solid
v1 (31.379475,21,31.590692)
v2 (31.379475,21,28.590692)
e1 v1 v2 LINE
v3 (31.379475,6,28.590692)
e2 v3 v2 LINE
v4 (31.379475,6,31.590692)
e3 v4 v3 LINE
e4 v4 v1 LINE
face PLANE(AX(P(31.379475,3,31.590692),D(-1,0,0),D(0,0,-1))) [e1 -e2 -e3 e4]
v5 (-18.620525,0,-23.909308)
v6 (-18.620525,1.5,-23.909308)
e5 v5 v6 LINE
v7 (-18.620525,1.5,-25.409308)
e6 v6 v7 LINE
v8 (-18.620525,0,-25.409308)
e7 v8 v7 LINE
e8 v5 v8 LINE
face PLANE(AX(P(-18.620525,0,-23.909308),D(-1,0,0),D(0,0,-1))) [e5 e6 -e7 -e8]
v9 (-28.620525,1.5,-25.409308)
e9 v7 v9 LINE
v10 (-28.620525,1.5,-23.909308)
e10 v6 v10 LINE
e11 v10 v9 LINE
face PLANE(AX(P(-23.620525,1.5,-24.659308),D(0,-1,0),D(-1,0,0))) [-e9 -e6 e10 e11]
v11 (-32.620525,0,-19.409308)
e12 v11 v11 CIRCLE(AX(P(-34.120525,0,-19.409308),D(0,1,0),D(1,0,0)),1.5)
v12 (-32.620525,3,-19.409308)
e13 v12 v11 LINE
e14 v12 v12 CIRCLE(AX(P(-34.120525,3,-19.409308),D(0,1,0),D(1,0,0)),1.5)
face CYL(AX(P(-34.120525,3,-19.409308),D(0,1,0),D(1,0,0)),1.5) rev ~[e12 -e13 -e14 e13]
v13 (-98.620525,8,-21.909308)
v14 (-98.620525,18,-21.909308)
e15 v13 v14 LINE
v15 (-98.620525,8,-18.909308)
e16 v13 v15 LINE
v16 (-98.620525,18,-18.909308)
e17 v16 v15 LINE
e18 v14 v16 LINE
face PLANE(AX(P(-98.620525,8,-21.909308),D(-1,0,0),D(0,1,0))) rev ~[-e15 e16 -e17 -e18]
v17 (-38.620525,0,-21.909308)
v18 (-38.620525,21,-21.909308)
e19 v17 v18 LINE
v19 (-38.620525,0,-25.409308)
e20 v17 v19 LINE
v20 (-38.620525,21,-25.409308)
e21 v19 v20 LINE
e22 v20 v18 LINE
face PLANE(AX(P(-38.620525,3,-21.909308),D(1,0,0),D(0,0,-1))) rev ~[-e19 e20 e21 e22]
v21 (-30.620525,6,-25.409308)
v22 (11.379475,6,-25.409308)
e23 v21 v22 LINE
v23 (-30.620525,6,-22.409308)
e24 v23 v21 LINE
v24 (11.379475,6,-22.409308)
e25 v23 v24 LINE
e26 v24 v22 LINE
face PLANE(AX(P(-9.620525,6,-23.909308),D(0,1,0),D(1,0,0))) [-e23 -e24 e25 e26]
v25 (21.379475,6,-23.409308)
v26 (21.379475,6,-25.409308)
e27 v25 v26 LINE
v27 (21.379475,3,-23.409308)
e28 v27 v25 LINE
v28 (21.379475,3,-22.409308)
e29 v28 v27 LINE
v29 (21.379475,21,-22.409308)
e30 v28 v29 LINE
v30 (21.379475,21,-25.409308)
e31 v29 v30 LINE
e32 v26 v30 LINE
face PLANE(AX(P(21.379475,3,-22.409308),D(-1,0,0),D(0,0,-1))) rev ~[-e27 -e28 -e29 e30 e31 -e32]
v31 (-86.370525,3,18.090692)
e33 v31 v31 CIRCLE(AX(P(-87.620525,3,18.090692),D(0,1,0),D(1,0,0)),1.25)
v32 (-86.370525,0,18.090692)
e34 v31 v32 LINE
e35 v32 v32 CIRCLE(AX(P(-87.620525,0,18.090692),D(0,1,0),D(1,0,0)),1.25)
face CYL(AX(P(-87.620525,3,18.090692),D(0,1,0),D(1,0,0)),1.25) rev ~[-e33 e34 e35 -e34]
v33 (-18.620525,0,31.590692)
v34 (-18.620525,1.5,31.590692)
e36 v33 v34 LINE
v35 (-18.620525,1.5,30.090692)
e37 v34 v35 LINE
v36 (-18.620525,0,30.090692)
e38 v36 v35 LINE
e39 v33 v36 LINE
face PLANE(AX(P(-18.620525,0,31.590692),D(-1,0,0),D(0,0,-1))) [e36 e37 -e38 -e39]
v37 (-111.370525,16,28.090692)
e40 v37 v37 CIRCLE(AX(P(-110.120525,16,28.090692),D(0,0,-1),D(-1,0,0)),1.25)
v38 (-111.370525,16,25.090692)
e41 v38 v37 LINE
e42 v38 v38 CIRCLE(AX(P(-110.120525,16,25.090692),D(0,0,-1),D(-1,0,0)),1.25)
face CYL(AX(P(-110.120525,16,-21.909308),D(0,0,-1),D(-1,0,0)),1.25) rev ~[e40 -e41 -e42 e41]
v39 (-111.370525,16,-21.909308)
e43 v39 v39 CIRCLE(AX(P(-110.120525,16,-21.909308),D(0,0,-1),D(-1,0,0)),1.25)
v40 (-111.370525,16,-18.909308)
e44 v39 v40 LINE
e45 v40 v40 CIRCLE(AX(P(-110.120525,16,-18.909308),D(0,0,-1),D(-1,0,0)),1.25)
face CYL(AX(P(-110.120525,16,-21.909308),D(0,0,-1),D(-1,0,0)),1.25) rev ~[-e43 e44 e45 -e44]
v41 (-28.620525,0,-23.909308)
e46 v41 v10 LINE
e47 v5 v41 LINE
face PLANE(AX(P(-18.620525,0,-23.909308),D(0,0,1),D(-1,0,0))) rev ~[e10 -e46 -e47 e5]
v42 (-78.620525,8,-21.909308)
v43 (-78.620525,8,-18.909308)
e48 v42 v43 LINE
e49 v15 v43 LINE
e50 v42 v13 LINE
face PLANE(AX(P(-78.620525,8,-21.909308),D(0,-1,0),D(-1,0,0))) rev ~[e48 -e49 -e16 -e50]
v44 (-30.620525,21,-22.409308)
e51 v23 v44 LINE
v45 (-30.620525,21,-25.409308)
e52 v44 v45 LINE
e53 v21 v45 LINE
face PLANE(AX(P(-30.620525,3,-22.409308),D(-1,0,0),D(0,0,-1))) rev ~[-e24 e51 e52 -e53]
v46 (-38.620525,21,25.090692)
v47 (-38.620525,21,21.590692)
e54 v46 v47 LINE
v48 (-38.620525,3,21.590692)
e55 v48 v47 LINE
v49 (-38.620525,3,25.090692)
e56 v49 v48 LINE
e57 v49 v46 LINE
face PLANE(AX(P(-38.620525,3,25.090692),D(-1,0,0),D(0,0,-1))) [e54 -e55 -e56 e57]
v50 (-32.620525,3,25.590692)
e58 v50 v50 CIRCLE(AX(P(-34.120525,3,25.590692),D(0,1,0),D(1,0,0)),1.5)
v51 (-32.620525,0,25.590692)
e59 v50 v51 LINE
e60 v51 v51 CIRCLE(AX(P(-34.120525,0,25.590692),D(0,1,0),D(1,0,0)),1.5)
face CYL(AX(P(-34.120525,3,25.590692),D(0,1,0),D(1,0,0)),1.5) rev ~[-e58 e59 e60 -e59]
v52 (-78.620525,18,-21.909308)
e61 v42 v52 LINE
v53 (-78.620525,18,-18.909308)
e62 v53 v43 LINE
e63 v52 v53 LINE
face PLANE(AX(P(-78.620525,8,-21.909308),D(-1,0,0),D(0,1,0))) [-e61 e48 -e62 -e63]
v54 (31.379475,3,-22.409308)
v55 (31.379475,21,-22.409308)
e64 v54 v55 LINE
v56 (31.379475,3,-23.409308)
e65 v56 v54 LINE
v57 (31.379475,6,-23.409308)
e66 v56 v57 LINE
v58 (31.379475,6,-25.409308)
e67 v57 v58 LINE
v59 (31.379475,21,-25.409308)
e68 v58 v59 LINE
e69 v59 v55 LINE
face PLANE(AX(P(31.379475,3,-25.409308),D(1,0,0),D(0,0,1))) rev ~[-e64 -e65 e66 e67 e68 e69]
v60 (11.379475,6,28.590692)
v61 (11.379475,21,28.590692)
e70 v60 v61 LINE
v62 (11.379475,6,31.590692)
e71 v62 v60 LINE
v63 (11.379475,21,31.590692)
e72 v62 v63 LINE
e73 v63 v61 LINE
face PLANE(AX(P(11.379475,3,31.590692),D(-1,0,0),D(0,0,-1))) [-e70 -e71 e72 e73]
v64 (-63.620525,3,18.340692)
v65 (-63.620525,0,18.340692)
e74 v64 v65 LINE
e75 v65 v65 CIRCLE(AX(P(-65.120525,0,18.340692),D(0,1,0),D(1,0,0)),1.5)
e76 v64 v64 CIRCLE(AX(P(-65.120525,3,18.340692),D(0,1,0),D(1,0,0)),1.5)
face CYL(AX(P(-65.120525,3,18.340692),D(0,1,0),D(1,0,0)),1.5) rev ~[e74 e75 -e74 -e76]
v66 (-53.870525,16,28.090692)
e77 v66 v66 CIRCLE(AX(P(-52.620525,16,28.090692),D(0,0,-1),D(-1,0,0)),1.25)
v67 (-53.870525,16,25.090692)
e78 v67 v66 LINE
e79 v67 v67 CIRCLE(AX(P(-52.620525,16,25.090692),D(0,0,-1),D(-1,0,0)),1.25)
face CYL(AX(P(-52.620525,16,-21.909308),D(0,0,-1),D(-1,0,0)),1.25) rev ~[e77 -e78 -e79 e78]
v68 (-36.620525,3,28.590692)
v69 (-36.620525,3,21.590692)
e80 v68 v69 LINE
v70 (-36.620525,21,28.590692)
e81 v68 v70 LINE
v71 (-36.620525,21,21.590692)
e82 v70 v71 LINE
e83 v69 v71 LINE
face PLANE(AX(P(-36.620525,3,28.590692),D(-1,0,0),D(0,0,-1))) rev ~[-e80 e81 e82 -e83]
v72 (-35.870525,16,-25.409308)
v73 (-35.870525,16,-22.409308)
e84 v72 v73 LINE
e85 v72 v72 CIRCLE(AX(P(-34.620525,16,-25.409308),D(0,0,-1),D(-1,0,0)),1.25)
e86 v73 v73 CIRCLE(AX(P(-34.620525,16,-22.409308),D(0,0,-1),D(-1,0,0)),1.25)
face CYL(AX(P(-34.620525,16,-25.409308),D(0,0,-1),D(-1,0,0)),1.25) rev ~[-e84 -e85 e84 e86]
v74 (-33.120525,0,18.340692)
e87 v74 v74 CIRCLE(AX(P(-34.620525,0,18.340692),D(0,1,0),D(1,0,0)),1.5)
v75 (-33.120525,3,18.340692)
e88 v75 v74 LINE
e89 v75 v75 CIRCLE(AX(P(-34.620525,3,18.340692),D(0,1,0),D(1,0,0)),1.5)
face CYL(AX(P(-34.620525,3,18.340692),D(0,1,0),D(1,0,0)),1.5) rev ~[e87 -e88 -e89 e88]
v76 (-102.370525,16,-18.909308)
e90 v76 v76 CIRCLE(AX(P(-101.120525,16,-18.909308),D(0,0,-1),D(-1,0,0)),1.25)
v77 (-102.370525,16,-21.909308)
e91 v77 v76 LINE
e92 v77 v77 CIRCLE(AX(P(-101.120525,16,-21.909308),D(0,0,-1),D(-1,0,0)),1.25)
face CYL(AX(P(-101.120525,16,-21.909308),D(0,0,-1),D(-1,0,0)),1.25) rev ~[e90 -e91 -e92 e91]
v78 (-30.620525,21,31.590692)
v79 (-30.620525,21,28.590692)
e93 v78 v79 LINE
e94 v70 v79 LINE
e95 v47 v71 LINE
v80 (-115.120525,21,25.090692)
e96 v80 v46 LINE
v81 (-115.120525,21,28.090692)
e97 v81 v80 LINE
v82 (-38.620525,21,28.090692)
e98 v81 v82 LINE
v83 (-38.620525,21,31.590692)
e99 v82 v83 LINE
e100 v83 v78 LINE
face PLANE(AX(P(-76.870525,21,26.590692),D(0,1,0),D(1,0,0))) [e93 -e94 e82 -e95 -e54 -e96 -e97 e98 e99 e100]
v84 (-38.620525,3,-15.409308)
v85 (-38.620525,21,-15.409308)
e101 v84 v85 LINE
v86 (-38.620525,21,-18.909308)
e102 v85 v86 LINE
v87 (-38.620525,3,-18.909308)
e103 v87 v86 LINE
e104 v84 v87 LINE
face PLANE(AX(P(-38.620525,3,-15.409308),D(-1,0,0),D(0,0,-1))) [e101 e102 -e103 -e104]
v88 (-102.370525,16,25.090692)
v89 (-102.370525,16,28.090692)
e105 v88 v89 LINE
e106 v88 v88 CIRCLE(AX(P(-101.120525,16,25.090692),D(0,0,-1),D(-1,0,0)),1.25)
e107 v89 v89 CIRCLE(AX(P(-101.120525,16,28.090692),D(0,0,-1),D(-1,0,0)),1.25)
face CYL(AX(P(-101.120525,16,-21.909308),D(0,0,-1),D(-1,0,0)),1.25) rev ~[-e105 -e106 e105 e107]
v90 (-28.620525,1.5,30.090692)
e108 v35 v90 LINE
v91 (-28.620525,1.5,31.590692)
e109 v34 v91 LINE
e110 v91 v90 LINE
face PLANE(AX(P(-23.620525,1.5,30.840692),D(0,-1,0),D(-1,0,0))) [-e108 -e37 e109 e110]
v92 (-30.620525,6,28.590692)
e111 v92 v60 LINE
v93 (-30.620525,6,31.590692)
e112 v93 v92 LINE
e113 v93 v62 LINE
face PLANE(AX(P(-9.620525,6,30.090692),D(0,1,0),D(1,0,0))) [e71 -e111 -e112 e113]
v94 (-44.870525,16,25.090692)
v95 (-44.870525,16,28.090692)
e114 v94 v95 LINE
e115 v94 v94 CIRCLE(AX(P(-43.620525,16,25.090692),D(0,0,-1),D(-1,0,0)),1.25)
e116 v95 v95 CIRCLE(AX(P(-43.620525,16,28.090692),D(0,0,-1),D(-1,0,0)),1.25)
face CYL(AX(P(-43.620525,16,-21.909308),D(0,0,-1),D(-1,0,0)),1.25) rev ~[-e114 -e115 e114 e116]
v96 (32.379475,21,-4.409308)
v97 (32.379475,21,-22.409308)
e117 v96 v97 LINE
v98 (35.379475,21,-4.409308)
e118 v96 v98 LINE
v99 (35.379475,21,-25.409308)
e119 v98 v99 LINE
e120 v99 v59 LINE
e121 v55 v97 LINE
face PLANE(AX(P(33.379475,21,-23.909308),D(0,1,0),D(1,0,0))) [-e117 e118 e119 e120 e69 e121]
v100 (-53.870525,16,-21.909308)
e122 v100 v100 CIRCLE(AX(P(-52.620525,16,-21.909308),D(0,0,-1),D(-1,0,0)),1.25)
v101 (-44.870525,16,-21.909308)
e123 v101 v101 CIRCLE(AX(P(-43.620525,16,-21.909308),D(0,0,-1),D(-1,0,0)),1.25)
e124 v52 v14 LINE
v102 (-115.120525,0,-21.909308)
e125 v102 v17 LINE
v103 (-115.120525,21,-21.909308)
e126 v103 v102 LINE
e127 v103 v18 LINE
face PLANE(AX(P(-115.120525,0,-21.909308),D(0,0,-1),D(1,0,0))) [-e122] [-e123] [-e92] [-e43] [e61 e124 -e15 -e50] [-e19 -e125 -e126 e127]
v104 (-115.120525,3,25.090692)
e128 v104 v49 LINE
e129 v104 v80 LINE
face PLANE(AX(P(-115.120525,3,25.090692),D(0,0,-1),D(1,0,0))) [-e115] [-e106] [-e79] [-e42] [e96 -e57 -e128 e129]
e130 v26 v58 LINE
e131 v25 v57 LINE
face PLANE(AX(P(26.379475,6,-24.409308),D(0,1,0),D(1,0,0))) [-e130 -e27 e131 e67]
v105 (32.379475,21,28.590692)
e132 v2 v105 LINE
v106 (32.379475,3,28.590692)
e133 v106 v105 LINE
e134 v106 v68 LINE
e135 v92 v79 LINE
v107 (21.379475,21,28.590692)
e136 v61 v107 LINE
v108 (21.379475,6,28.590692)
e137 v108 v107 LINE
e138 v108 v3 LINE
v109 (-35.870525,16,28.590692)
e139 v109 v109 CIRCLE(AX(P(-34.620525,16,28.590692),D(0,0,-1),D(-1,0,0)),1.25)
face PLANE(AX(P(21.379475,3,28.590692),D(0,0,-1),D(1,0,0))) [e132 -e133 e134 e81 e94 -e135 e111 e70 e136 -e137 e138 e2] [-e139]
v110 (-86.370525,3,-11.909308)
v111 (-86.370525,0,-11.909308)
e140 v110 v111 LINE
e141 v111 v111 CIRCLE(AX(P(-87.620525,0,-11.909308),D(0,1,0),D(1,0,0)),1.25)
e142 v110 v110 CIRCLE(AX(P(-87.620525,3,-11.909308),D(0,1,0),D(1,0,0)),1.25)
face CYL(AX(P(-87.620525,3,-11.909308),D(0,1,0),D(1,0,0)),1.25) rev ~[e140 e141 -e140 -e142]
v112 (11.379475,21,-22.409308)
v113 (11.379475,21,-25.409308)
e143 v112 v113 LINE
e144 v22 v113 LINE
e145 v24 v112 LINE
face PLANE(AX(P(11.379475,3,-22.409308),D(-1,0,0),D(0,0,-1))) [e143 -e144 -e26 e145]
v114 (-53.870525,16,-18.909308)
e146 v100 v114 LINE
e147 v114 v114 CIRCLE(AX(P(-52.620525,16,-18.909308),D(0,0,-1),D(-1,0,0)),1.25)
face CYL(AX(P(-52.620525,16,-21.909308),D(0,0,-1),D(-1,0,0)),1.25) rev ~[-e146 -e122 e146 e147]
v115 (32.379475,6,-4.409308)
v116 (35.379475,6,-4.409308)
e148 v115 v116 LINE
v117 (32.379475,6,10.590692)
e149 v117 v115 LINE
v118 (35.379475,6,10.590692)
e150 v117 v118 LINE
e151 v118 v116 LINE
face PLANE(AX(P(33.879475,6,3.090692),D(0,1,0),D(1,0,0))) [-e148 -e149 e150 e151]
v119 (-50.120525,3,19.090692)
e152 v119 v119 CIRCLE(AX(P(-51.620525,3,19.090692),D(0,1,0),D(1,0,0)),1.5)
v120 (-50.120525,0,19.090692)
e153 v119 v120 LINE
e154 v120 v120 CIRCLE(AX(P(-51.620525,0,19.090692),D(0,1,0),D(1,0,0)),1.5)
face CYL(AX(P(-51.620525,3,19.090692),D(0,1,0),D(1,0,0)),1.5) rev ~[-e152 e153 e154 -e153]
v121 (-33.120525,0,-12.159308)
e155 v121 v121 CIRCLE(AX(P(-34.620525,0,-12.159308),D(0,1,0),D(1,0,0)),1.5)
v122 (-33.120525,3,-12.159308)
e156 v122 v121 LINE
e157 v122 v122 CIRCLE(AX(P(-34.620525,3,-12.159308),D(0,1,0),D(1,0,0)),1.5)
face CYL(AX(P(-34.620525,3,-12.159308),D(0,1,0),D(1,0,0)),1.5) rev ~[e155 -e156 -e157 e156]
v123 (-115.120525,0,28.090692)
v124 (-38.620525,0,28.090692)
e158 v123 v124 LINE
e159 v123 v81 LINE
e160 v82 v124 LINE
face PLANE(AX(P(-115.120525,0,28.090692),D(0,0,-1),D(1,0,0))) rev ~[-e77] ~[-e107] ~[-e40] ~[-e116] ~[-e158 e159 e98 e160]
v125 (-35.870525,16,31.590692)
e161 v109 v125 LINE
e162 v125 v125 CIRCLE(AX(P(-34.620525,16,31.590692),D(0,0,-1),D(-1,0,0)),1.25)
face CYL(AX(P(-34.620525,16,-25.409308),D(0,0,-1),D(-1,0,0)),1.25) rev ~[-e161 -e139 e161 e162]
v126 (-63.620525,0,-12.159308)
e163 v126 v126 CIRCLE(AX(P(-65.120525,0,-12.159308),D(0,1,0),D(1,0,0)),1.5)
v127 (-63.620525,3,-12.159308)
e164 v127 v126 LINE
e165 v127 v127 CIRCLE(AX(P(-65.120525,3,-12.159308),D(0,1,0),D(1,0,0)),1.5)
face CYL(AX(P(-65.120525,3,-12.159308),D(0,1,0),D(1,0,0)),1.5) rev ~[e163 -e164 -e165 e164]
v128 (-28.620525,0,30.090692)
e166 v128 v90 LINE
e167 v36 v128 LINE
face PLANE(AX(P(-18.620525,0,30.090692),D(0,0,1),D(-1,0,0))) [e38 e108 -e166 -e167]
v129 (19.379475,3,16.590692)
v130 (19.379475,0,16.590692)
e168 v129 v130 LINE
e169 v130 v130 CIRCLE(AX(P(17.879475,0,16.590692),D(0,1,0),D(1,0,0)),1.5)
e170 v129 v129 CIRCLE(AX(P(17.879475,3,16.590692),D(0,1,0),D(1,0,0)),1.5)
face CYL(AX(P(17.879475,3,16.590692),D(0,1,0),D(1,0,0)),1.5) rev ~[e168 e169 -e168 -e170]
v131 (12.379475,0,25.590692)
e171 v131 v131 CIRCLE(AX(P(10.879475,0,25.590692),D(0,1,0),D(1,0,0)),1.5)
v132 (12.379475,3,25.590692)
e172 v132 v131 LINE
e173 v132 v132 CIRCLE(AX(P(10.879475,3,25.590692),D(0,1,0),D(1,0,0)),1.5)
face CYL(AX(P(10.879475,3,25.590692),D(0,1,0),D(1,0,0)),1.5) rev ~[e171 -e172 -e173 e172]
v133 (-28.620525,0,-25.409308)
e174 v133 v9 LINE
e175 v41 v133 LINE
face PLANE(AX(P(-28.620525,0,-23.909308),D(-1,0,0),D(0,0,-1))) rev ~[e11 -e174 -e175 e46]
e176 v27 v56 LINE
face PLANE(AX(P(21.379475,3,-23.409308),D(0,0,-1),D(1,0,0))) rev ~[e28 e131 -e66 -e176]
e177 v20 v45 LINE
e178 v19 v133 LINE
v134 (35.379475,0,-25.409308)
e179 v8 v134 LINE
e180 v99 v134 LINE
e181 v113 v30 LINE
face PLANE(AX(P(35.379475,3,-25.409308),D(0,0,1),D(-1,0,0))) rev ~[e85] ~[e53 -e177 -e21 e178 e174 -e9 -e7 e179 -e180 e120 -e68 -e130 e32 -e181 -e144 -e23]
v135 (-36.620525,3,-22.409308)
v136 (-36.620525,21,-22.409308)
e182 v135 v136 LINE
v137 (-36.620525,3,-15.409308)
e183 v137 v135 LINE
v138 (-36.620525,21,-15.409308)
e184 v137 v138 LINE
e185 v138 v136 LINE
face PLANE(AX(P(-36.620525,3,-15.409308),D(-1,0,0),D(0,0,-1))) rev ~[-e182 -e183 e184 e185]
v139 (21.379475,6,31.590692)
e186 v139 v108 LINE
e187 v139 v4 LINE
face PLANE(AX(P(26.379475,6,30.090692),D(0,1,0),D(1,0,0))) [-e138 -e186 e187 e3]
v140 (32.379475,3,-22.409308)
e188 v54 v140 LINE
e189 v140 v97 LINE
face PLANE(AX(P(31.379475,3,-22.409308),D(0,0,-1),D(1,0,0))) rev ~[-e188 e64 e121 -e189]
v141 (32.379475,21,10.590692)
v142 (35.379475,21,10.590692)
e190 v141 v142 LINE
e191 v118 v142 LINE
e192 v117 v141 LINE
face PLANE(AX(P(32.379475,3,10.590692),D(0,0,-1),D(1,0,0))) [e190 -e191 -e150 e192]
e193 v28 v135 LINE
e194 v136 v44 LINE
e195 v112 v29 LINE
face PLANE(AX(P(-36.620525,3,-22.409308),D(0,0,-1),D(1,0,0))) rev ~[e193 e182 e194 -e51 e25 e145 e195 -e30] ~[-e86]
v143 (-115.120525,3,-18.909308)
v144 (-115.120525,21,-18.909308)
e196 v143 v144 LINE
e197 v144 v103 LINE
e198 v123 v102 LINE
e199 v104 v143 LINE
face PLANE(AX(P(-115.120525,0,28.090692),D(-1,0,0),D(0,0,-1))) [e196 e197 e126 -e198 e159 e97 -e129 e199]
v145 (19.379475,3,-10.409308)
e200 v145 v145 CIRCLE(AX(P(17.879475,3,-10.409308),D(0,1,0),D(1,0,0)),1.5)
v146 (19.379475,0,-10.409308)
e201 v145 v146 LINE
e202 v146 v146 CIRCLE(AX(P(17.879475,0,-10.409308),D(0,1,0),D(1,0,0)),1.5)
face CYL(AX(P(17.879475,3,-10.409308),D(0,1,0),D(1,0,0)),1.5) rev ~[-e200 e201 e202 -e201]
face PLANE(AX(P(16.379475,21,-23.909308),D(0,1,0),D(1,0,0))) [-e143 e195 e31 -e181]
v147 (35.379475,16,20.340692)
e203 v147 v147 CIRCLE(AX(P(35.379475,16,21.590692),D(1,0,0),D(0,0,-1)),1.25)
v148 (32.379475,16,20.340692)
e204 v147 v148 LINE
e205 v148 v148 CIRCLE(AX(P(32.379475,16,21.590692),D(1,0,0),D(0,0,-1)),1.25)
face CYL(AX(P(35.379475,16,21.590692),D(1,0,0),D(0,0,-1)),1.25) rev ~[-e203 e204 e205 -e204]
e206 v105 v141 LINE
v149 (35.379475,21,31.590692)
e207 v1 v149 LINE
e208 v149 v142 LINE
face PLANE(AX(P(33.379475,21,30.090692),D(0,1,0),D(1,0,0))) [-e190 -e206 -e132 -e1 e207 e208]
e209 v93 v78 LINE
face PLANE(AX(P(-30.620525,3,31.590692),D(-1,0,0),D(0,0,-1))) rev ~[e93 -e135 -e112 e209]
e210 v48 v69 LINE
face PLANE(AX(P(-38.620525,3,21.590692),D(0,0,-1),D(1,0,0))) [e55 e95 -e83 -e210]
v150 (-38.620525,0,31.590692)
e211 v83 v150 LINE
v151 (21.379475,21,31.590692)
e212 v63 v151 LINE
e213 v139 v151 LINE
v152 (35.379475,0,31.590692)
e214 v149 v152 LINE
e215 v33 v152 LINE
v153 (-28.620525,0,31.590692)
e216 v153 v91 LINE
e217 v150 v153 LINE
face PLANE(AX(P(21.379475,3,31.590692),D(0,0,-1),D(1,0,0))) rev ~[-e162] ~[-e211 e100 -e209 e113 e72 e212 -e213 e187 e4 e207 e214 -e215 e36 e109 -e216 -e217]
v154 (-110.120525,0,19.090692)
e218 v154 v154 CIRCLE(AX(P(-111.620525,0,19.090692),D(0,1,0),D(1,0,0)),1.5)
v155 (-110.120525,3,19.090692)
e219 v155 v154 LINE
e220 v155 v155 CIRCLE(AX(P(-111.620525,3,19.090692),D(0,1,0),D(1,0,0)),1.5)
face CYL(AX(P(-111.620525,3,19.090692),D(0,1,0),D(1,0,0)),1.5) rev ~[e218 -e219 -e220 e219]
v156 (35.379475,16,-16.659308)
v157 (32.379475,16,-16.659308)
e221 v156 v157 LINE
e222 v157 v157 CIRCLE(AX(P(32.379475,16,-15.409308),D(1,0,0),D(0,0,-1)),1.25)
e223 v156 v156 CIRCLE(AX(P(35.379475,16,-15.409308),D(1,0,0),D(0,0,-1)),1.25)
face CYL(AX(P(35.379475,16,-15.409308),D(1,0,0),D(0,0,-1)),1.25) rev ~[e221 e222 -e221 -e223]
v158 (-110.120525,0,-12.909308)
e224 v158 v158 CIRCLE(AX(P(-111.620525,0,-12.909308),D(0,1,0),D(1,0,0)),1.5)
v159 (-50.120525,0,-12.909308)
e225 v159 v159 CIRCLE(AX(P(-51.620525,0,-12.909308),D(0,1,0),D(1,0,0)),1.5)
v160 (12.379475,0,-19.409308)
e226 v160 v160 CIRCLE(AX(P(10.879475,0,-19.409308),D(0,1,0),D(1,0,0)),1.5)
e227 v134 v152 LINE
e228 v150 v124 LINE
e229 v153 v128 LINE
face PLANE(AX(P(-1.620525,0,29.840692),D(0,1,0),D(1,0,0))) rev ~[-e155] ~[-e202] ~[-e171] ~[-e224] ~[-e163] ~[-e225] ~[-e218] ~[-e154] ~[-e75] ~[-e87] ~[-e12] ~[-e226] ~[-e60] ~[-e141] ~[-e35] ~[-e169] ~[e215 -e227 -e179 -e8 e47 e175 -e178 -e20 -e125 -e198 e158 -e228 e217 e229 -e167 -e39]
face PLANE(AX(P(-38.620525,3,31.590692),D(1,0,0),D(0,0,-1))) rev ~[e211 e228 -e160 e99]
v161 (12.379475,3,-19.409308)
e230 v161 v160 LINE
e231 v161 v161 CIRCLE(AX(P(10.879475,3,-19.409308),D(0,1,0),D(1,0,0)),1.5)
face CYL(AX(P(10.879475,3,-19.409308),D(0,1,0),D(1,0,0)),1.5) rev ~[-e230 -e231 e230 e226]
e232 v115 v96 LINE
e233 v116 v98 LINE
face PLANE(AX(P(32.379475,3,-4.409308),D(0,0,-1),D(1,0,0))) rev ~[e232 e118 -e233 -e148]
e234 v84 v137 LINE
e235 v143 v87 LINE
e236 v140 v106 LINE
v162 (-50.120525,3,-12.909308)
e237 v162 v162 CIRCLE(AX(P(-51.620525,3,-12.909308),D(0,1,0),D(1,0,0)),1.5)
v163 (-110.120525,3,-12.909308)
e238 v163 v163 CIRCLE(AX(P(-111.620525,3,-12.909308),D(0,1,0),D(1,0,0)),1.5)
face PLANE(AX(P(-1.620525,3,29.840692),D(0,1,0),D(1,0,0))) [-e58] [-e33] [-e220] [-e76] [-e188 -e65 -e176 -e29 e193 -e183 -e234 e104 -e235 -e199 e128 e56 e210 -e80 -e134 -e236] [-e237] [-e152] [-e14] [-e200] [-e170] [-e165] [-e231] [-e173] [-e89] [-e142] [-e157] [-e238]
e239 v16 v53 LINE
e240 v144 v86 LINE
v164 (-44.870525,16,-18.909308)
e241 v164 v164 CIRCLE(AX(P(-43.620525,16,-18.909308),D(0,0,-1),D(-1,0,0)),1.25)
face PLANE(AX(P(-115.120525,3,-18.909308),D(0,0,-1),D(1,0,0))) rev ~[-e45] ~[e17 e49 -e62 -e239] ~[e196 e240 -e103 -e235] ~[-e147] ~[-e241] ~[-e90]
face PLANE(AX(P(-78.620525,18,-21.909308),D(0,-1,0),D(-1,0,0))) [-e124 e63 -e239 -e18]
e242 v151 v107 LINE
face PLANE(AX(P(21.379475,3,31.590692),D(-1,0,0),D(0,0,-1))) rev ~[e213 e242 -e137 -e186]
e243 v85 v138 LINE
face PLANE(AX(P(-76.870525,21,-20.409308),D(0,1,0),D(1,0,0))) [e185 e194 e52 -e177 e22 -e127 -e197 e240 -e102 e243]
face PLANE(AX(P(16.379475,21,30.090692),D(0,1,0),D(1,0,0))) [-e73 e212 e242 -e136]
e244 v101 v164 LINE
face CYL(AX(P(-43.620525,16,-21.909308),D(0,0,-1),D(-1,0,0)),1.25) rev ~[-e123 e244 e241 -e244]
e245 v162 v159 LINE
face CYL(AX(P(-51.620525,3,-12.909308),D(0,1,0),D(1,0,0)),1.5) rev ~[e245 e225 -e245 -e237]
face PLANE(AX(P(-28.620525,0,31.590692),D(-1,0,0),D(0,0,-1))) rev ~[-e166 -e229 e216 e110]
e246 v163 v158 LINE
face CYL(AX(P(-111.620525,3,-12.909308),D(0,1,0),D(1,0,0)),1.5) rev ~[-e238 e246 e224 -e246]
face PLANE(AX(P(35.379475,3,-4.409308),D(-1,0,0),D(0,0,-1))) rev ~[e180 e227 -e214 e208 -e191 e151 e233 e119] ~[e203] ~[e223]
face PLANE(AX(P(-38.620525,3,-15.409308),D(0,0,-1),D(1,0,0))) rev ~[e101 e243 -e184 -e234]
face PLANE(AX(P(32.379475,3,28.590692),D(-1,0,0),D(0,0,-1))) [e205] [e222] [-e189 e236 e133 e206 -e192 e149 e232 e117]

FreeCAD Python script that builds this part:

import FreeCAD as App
import Part
import Sketcher


def add_polygon(sketch, points):
    """Adds a closed chain of lines whose ends are joined by coincident constraints."""
    first, n = sketch.GeometryCount, len(points)
    for a, b in zip(points, points[1:] + points[:1]):
        sketch.addGeometry(Part.LineSegment(App.Vector(*a, 0), App.Vector(*b, 0)), False)
    for i in range(n):
        sketch.addConstraint(Sketcher.Constraint("Coincident", first + i, 2, first + (i + 1) % n, 1))

doc = App.newDocument("Part")
body = doc.addObject("PartDesign::Body", "Body")

# Sketch on XZ plane
sketch1 = doc.addObject("Sketcher::SketchObject", "Sketch")
body.addObject(sketch1)
sketch1.AttachmentSupport = (doc.XZ_Plane, [""])
sketch1.MapMode = "FlatFace"
add_polygon(sketch1, [(-115, -22), (-115, 28), (35, 28), (35, -22)])  # lines 0-3
sketch1.addConstraint([
    Sketcher.Constraint("Vertical", 0),
    Sketcher.Constraint("Horizontal", 1),
    Sketcher.Constraint("Vertical", 2),
    Sketcher.Constraint("Horizontal", 3),
    Sketcher.Constraint("DistanceY", 0, 1, 0, 2, 50.0),
    Sketcher.Constraint("DistanceX", 1, 1, 1, 2, 150.5),
    Sketcher.Constraint("DistanceX", 0, 2, -1, 1, 115.120525),
    Sketcher.Constraint("DistanceY", -1, 1, 0, 2, 28.090692),
])
pad1 = doc.addObject("PartDesign::Pad", "Pad")
body.addObject(pad1)
pad1.Profile = sketch1
pad1.Length = 3
pad1.Reversed = True

# Sketch on XZ plane
sketch2 = doc.addObject("Sketcher::SketchObject", "Sketch001")
body.addObject(sketch2)
sketch2.AttachmentSupport = (doc.XZ_Plane, [""])
sketch2.MapMode = "FlatFace"
sketch2.AttachmentOffset = App.Placement(App.Vector(0, 0, -3), App.Rotation())
sketch2.addGeometry([
    Part.Circle(App.Vector(-65.1, -12.2, 0), App.Vector(0, 0, 1), 1.5),  # 0
    Part.Circle(App.Vector(-65.1, 18.3, 0), App.Vector(0, 0, 1), 1.5),  # 1
    Part.Circle(App.Vector(-34.6, 18.3, 0), App.Vector(0, 0, 1), 1.5),  # 2
    Part.Circle(App.Vector(-34.6, -12.2, 0), App.Vector(0, 0, 1), 1.5),  # 3
    Part.Circle(App.Vector(17.9, 16.6, 0), App.Vector(0, 0, 1), 1.5),  # 4
    Part.Circle(App.Vector(17.9, -10.4, 0), App.Vector(0, 0, 1), 1.5),  # 5
    Part.Circle(App.Vector(-111.6, 19.1, 0), App.Vector(0, 0, 1), 1.5),  # 6
    Part.Circle(App.Vector(-111.6, -12.9, 0), App.Vector(0, 0, 1), 1.5),  # 7
    Part.Circle(App.Vector(-87.6, -11.9, 0), App.Vector(0, 0, 1), 1.2),  # 8
    Part.Circle(App.Vector(-87.6, 18.1, 0), App.Vector(0, 0, 1), 1.2),  # 9
    Part.Circle(App.Vector(-51.6, -12.9, 0), App.Vector(0, 0, 1), 1.5),  # 10
    Part.Circle(App.Vector(-51.6, 19.1, 0), App.Vector(0, 0, 1), 1.5),  # 11
], False)
sketch2.addConstraint([
    Sketcher.Constraint("Equal", 0, 1),
    Sketcher.Constraint("Equal", 1, 2),
    Sketcher.Constraint("Equal", 2, 3),
    Sketcher.Constraint("Equal", 3, 4),
    Sketcher.Constraint("Equal", 4, 5),
    Sketcher.Constraint("Equal", 5, 6),
    Sketcher.Constraint("Equal", 6, 7),
    Sketcher.Constraint("Equal", 8, 9),
    Sketcher.Constraint("Equal", 7, 10),
    Sketcher.Constraint("Equal", 10, 11),
    Sketcher.Constraint("Horizontal", 1, 3, 2, 3),
    Sketcher.Constraint("Horizontal", 0, 3, 3, 3),
    Sketcher.Constraint("Horizontal", 7, 3, 10, 3),
    Sketcher.Constraint("Horizontal", 6, 3, 11, 3),
    Sketcher.Constraint("Vertical", 0, 3, 1, 3),
    Sketcher.Constraint("Vertical", 2, 3, 3, 3),
    Sketcher.Constraint("Vertical", 4, 3, 5, 3),
    Sketcher.Constraint("Vertical", 6, 3, 7, 3),
    Sketcher.Constraint("Vertical", 8, 3, 9, 3),
    Sketcher.Constraint("Vertical", 10, 3, 11, 3),
    Sketcher.Constraint("Diameter", 0, 3.0),
    Sketcher.Constraint("Diameter", 8, 2.5),
    Sketcher.Constraint("DistanceX", 1, 3, 4, 3, 83.0),
    Sketcher.Constraint("DistanceY", 5, 3, 4, 3, 27.0),
    Sketcher.Constraint("DistanceX", 6, 3, 2, 3, 77.0),
    Sketcher.Constraint("DistanceY", 7, 3, 6, 3, 32.0),
    Sketcher.Constraint("DistanceX", 7, 3, 8, 3, 24.0),
    Sketcher.Constraint("DistanceY", 7, 3, 8, 3, 1.0),
    Sketcher.Constraint("DistanceY", 9, 3, 6, 3, 1.0),
    Sketcher.Constraint("DistanceX", 10, 3, 3, 3, 17.0),
    Sketcher.Constraint("DistanceY", 0, 3, 1, 3, 30.5),
    Sketcher.Constraint("DistanceX", 1, 3, 2, 3, 30.5),
    Sketcher.Constraint("DistanceY", 4, 3, 6, 3, 2.5),
    Sketcher.Constraint("DistanceY", 4, 3, 2, 3, 1.75),
    Sketcher.Constraint("DistanceX", 0, 3, -1, 1, 65.120525),
    Sketcher.Constraint("DistanceY", 0, 3, -1, 1, 12.159308),
])
pocket1 = doc.addObject("PartDesign::Pocket", "Pocket")
body.addObject(pocket1)
pocket1.Profile = sketch2
pocket1.Type = "ThroughAll"
pocket1.Reversed = True

# Sketch on XZ plane
sketch3 = doc.addObject("Sketcher::SketchObject", "Sketch002")
body.addObject(sketch3)
sketch3.AttachmentSupport = (doc.XZ_Plane, [""])
sketch3.MapMode = "FlatFace"
sketch3.AttachmentOffset = App.Placement(App.Vector(0, 0, -3), App.Rotation())
add_polygon(sketch3, [(-38.6, 28.1), (-38.6, 31.6), (35.4, 31.6), (35.4, 28.1)])  # lines 0-3
add_polygon(sketch3, [(-38.6, -25.4), (-38.6, -21.9), (35.4, -21.9), (35.4, -25.4)])  # lines 4-7
sketch3.addConstraint([
    Sketcher.Constraint("Vertical", 0),
    Sketcher.Constraint("Horizontal", 1),
    Sketcher.Constraint("Vertical", 2),
    Sketcher.Constraint("Horizontal", 3),
    Sketcher.Constraint("Vertical", 4),
    Sketcher.Constraint("Horizontal", 5),
    Sketcher.Constraint("Vertical", 6),
    Sketcher.Constraint("Horizontal", 7),
    Sketcher.Constraint("Vertical", 3, 2, 4, 2),
    Sketcher.Constraint("Vertical", 2, 2, 5, 2),
    Sketcher.Constraint("Equal", 2, 4),
    Sketcher.Constraint("DistanceX", 1, 1, 1, 2, 74.0),
    Sketcher.Constraint("DistanceY", 0, 1, 0, 2, 3.5),
    Sketcher.Constraint("DistanceY", 4, 2, 3, 2, 50.0),
    Sketcher.Constraint("DistanceX", 0, 2, -1, 1, 38.620525),
    Sketcher.Constraint("DistanceY", -1, 1, 0, 2, 31.590692),
])
pad2 = doc.addObject("PartDesign::Pad", "Pad001")
body.addObject(pad2)
pad2.Profile = sketch3
pad2.Length = 3

# Sketch on XZ plane
sketch4 = doc.addObject("Sketcher::SketchObject", "Sketch003")
body.addObject(sketch4)
sketch4.AttachmentSupport = (doc.XZ_Plane, [""])
sketch4.MapMode = "FlatFace"
sketch4.AttachmentOffset = App.Placement(App.Vector(0, 0, -3), App.Rotation())
sketch4.addGeometry([
    Part.Circle(App.Vector(-34.1, -19.4, 0), App.Vector(0, 0, 1), 1.5),
    Part.Circle(App.Vector(-34.1, 25.6, 0), App.Vector(0, 0, 1), 1.5),
    Part.Circle(App.Vector(10.9, -19.4, 0), App.Vector(0, 0, 1), 1.5),
    Part.Circle(App.Vector(10.9, 25.6, 0), App.Vector(0, 0, 1), 1.5),
], False)
sketch4.addConstraint([
    Sketcher.Constraint("Equal", 0, 1),
    Sketcher.Constraint("Equal", 1, 2),
    Sketcher.Constraint("Equal", 2, 3),
    Sketcher.Constraint("Horizontal", 0, 3, 2, 3),
    Sketcher.Constraint("Horizontal", 1, 3, 3, 3),
    Sketcher.Constraint("Vertical", 0, 3, 1, 3),
    Sketcher.Constraint("Vertical", 2, 3, 3, 3),
    Sketcher.Constraint("Diameter", 0, 3.0),
    Sketcher.Constraint("DistanceY", 0, 3, 1, 3, 45.0),
    Sketcher.Constraint("DistanceX", 0, 3, 2, 3, 45.0),
    Sketcher.Constraint("DistanceX", 0, 3, -1, 1, 34.120525),
    Sketcher.Constraint("DistanceY", 0, 3, -1, 1, 19.409308),
])
pocket2 = doc.addObject("PartDesign::Pocket", "Pocket001")
body.addObject(pocket2)
pocket2.Profile = sketch4
pocket2.Type = "ThroughAll"
pocket2.Reversed = True

# Sketch on XZ plane
sketch5 = doc.addObject("Sketcher::SketchObject", "Sketch004")
body.addObject(sketch5)
sketch5.AttachmentSupport = (doc.XZ_Plane, [""])
sketch5.MapMode = "FlatFace"
sketch5.AttachmentOffset = App.Placement(App.Vector(0, 0, -3), App.Rotation())
add_polygon(sketch5, [(35.4, -25.4), (31.4, -25.4), (31.4, -22.4), (32.4, -22.4), (32.4, -4.4), (35.4, -4.4)])  # lines 0-5
add_polygon(sketch5, [(-115.1, 25.1), (-115.1, 28.1), (-38.6, 28.1), (-38.6, 31.6), (-30.6, 31.6), (-30.6, 28.6), (-36.6, 28.6), (-36.6, 21.6), (-38.6, 21.6), (-38.6, 25.1)])  # lines 6-15
add_polygon(sketch5, [(-115.1, -21.9), (-115.1, -18.9), (-38.6, -18.9), (-38.6, -15.4), (-36.6, -15.4), (-36.6, -22.4), (-30.6, -22.4), (-30.6, -25.4), (-38.6, -25.4), (-38.6, -21.9)])  # lines 16-25
add_polygon(sketch5, [(31.4, 28.6), (31.4, 31.6), (35.4, 31.6), (35.4, 10.6), (32.4, 10.6), (32.4, 28.6)])  # lines 26-31
add_polygon(sketch5, [(11.4, 28.6), (11.4, 31.6), (21.4, 31.6), (21.4, 28.6)])  # lines 32-35
add_polygon(sketch5, [(11.4, -25.4), (11.4, -22.4), (21.4, -22.4), (21.4, -25.4)])  # lines 36-39
sketch5.addConstraint([
    Sketcher.Constraint("Horizontal", 0),
    Sketcher.Constraint("Vertical", 1),
    Sketcher.Constraint("Horizontal", 2),
    Sketcher.Constraint("Vertical", 3),
    Sketcher.Constraint("Horizontal", 4),
    Sketcher.Constraint("Vertical", 5),
    Sketcher.Constraint("Vertical", 6),
    Sketcher.Constraint("Horizontal", 7),
    Sketcher.Constraint("Vertical", 8),
    Sketcher.Constraint("Horizontal", 9),
    Sketcher.Constraint("Vertical", 10),
    Sketcher.Constraint("Horizontal", 11),
    Sketcher.Constraint("Vertical", 12),
    Sketcher.Constraint("Horizontal", 13),
    Sketcher.Constraint("Vertical", 14),
    Sketcher.Constraint("Horizontal", 15),
    Sketcher.Constraint("Vertical", 16),
    Sketcher.Constraint("Horizontal", 17),
    Sketcher.Constraint("Vertical", 18),
    Sketcher.Constraint("Horizontal", 19),
    Sketcher.Constraint("Vertical", 20),
    Sketcher.Constraint("Horizontal", 21),
    Sketcher.Constraint("Vertical", 22),
    Sketcher.Constraint("Horizontal", 23),
    Sketcher.Constraint("Vertical", 24),
    Sketcher.Constraint("Horizontal", 25),
    Sketcher.Constraint("Vertical", 26),
    Sketcher.Constraint("Horizontal", 27),
    Sketcher.Constraint("Vertical", 28),
    Sketcher.Constraint("Horizontal", 29),
    Sketcher.Constraint("Vertical", 30),
    Sketcher.Constraint("Horizontal", 31),
    Sketcher.Constraint("Vertical", 32),
    Sketcher.Constraint("Horizontal", 33),
    Sketcher.Constraint("Vertical", 34),
    Sketcher.Constraint("Horizontal", 35),
    Sketcher.Constraint("Vertical", 36),
    Sketcher.Constraint("Horizontal", 37),
    Sketcher.Constraint("Vertical", 38),
    Sketcher.Constraint("Horizontal", 39),
    Sketcher.Constraint("Horizontal", 2, 2, 20, 2),
    Sketcher.Constraint("Horizontal", 5, 2, 22, 2),
    Sketcher.Constraint("Horizontal", 9, 2, 26, 2),
    Sketcher.Constraint("Horizontal", 11, 2, 30, 2),
    Sketcher.Constraint("Horizontal", 27, 2, 32, 2),
    Sketcher.Constraint("Horizontal", 31, 2, 34, 2),
    Sketcher.Constraint("Horizontal", 21, 2, 36, 2),
    Sketcher.Constraint("Horizontal", 23, 2, 38, 2),
    Sketcher.Constraint("Vertical", 8, 2, 13, 2),
    Sketcher.Constraint("Vertical", 15, 2, 16, 2),
    Sketcher.Constraint("Vertical", 14, 2, 17, 2),
    Sketcher.Constraint("Vertical", 12, 2, 19, 2),
    Sketcher.Constraint("Vertical", 10, 2, 21, 2),
    Sketcher.Constraint("Vertical", 18, 2, 23, 2),
    Sketcher.Constraint("Vertical", 1, 2, 26, 2),
    Sketcher.Constraint("Vertical", 5, 2, 27, 2),
    Sketcher.Constraint("Vertical", 3, 2, 29, 2),
    Sketcher.Constraint("Vertical", 35, 2, 36, 2),
    Sketcher.Constraint("Vertical", 34, 2, 37, 2),
    Sketcher.Constraint("Equal", 29, 1),
    Sketcher.Constraint("Equal", 1, 6),
    Sketcher.Constraint("Equal", 6, 10),
    Sketcher.Constraint("Equal", 8, 14),
    Sketcher.Constraint("Equal", 10, 16),
    Sketcher.Constraint("Equal", 14, 18),
    Sketcher.Constraint("Equal", 12, 20),
    Sketcher.Constraint("Equal", 5, 28),
    Sketcher.Constraint("DistanceX", 0, 2, 0, 1, 4.0),
    Sketcher.Constraint("DistanceX", 2, 1, 2, 2, 1.0),
    Sketcher.Constraint("DistanceX", 9, 1, 9, 2, 8.0),
    Sketcher.Constraint("DistanceX", 11, 2, 11, 1, 6.0),
    Sketcher.Constraint("DistanceX", 33, 1, 33, 2, 10.0),
    Sketcher.Constraint("DistanceY", 3, 1, 3, 2, 18.0),
    Sketcher.Constraint("DistanceY", 12, 2, 12, 1, 7.0),
    Sketcher.Constraint("DistanceX", 7, 1, 7, 2, 76.5),
    Sketcher.Constraint("DistanceX", 7, 2, 3, 2, 71.0),
    Sketcher.Constraint("DistanceY", 3, 2, 8, 2, 36.0),
    Sketcher.Constraint("DistanceX", 32, 2, 26, 2, 20.0),
    Sketcher.Constraint("DistanceX", -1, 1, 0, 2, 31.379475),
    Sketcher.Constraint("DistanceY", 0, 2, -1, 1, 25.409308),
])
pad3 = doc.addObject("PartDesign::Pad", "Pad002")
body.addObject(pad3)
pad3.Profile = sketch5
pad3.Length = 18
pad3.Reversed = True

# Sketch on XZ plane
sketch6 = doc.addObject("Sketcher::SketchObject", "Sketch005")
body.addObject(sketch6)
sketch6.AttachmentSupport = (doc.XZ_Plane, [""])
sketch6.MapMode = "FlatFace"
sketch6.AttachmentOffset = App.Placement(App.Vector(0, 0, -3), App.Rotation())
add_polygon(sketch6, [(21.4, 28.6), (21.4, 31.6), (31.4, 31.6), (31.4, 28.6)])  # lines 0-3
add_polygon(sketch6, [(21.4, -25.4), (21.4, -23.4), (31.4, -23.4), (31.4, -25.4)])  # lines 4-7
add_polygon(sketch6, [(-30.6, -25.4), (-30.6, -22.4), (11.4, -22.4), (11.4, -25.4)])  # lines 8-11
add_polygon(sketch6, [(-30.6, 28.6), (-30.6, 31.6), (11.4, 31.6), (11.4, 28.6)])  # lines 12-15
add_polygon(sketch6, [(32.4, -4.4), (32.4, 10.6), (35.4, 10.6), (35.4, -4.4)])  # lines 16-19
sketch6.addConstraint([
    Sketcher.Constraint("Vertical", 0),
    Sketcher.Constraint("Horizontal", 1),
    Sketcher.Constraint("Vertical", 2),
    Sketcher.Constraint("Horizontal", 3),
    Sketcher.Constraint("Vertical", 4),
    Sketcher.Constraint("Horizontal", 5),
    Sketcher.Constraint("Vertical", 6),
    Sketcher.Constraint("Horizontal", 7),
    Sketcher.Constraint("Vertical", 8),
    Sketcher.Constraint("Horizontal", 9),
    Sketcher.Constraint("Vertical", 10),
    Sketcher.Constraint("Horizontal", 11),
    Sketcher.Constraint("Vertical", 12),
    Sketcher.Constraint("Horizontal", 13),
    Sketcher.Constraint("Vertical", 14),
    Sketcher.Constraint("Horizontal", 15),
    Sketcher.Constraint("Vertical", 16),
    Sketcher.Constraint("Horizontal", 17),
    Sketcher.Constraint("Vertical", 18),
    Sketcher.Constraint("Horizontal", 19),
    Sketcher.Constraint("Horizontal", 7, 2, 10, 2),
    Sketcher.Constraint("Horizontal", 1, 2, 12, 2),
    Sketcher.Constraint("Horizontal", 3, 2, 14, 2),
    Sketcher.Constraint("Vertical", 3, 2, 4, 2),
    Sketcher.Constraint("Vertical", 2, 2, 5, 2),
    Sketcher.Constraint("Vertical", 11, 2, 12, 2),
    Sketcher.Constraint("Vertical", 10, 2, 13, 2),
    Sketcher.Constraint("Equal", 19, 0),
    Sketcher.Constraint("Equal", 2, 8),
    Sketcher.Constraint("DistanceX", 1, 1, 1, 2, 10.0),
    Sketcher.Constraint("DistanceX", 9, 1, 9, 2, 42.0),
    Sketcher.Constraint("DistanceX", 17, 1, 17, 2, 3.0),
    Sketcher.Constraint("DistanceY", 4, 1, 4, 2, 2.0),
    Sketcher.Constraint("DistanceY", 16, 1, 16, 2, 15.0),
    Sketcher.Constraint("DistanceY", 4, 2, 3, 2, 52.0),
    Sketcher.Constraint("DistanceX", 8, 2, 4, 2, 52.0),
    Sketcher.Constraint("DistanceX", 2, 2, 16, 2, 1.0),
    Sketcher.Constraint("DistanceY", 16, 2, 2, 2, 18.0),
    Sketcher.Constraint("DistanceX", -1, 1, 0, 2, 21.379475),
    Sketcher.Constraint("DistanceY", -1, 1, 0, 2, 31.590692),
])
pad4 = doc.addObject("PartDesign::Pad", "Pad003")
body.addObject(pad4)
pad4.Profile = sketch6
pad4.Length = 3
pad4.Reversed = True

# Sketch on XY plane
sketch7 = doc.addObject("Sketcher::SketchObject", "Sketch006")
body.addObject(sketch7)
sketch7.AttachmentSupport = (doc.XY_Plane, [""])
sketch7.MapMode = "FlatFace"
sketch7.AttachmentOffset = App.Placement(App.Vector(0, 0, -21.909308), App.Rotation())
add_polygon(sketch7, [(-79, 18), (-79, 8), (-99, 8), (-99, 18)])  # lines 0-3
sketch7.addConstraint([
    Sketcher.Constraint("Vertical", 0),
    Sketcher.Constraint("Horizontal", 1),
    Sketcher.Constraint("Vertical", 2),
    Sketcher.Constraint("Horizontal", 3),
    Sketcher.Constraint("DistanceX", 1, 2, 1, 1, 20.0),
    Sketcher.Constraint("DistanceY", 0, 2, 0, 1, 10.0),
    Sketcher.Constraint("DistanceY", -1, 1, 0, 2, 8.0),
    Sketcher.Constraint("DistanceX", 0, 2, -1, 1, 78.620525),
])
pocket3 = doc.addObject("PartDesign::Pocket", "Pocket002")
body.addObject(pocket3)
pocket3.Profile = sketch7
pocket3.Type = "UpToFirst"
pocket3.Reversed = True

# Sketch on YZ plane
sketch8 = doc.addObject("Sketcher::SketchObject", "Sketch007")
body.addObject(sketch8)
sketch8.AttachmentSupport = (doc.YZ_Plane, [""])
sketch8.MapMode = "FlatFace"
sketch8.AttachmentOffset = App.Placement(App.Vector(0, 0, 35.379475), App.Rotation())
sketch8.addGeometry(Part.Circle(App.Vector(16, 21.6, 0), App.Vector(0, 0, 1), 1.2), False)
sketch8.addConstraint([
    Sketcher.Constraint("Diameter", 0, 2.5),
    Sketcher.Constraint("DistanceX", -1, 1, 0, 3, 16.0),
    Sketcher.Constraint("DistanceY", -1, 1, 0, 3, 21.590692),
])
pocket4 = doc.addObject("PartDesign::Pocket", "Pocket003")
body.addObject(pocket4)
pocket4.Profile = sketch8
pocket4.Type = "UpToFirst"

# Sketch on YZ plane
sketch9 = doc.addObject("Sketcher::SketchObject", "Sketch008")
body.addObject(sketch9)
sketch9.AttachmentSupport = (doc.YZ_Plane, [""])
sketch9.MapMode = "FlatFace"
sketch9.AttachmentOffset = App.Placement(App.Vector(0, 0, 35.379475), App.Rotation())
sketch9.addGeometry(Part.Circle(App.Vector(16, -15.4, 0), App.Vector(0, 0, 1), 1.2), False)
sketch9.addConstraint([
    Sketcher.Constraint("Diameter", 0, 2.5),
    Sketcher.Constraint("DistanceX", -1, 1, 0, 3, 16.0),
    Sketcher.Constraint("DistanceY", 0, 3, -1, 1, 15.409308),
])
pocket5 = doc.addObject("PartDesign::Pocket", "Pocket004")
body.addObject(pocket5)
pocket5.Profile = sketch9
pocket5.Type = "UpToFirst"

# Sketch on XY plane
sketch10 = doc.addObject("Sketcher::SketchObject", "Sketch009")
body.addObject(sketch10)
sketch10.AttachmentSupport = (doc.XY_Plane, [""])
sketch10.MapMode = "FlatFace"
sketch10.AttachmentOffset = App.Placement(App.Vector(0, 0, -21.909308), App.Rotation())
sketch10.addGeometry([
    Part.Circle(App.Vector(-43.6, 16, 0), App.Vector(0, 0, 1), 1.2),
    Part.Circle(App.Vector(-110.1, 16, 0), App.Vector(0, 0, 1), 1.2),
    Part.Circle(App.Vector(-52.6, 16, 0), App.Vector(0, 0, 1), 1.2),
    Part.Circle(App.Vector(-101.1, 16, 0), App.Vector(0, 0, 1), 1.2),
], False)
sketch10.addConstraint([
    Sketcher.Constraint("Equal", 0, 1),
    Sketcher.Constraint("Equal", 1, 2),
    Sketcher.Constraint("Equal", 2, 3),
    Sketcher.Constraint("Horizontal", 0, 3, 1, 3),
    Sketcher.Constraint("Horizontal", 1, 3, 2, 3),
    Sketcher.Constraint("Horizontal", 2, 3, 3, 3),
    Sketcher.Constraint("Diameter", 0, 2.5),
    Sketcher.Constraint("DistanceY", -1, 1, 0, 3, 16.0),
    Sketcher.Constraint("DistanceX", 2, 3, 0, 3, 9.0),
    Sketcher.Constraint("DistanceX", 1, 3, 3, 3, 9.0),
    Sketcher.Constraint("DistanceX", 1, 3, 0, 3, 66.5),
    Sketcher.Constraint("DistanceX", 0, 3, -1, 1, 43.620525),
])
pocket6 = doc.addObject("PartDesign::Pocket", "Pocket005")
body.addObject(pocket6)
pocket6.Profile = sketch10
pocket6.Type = "ThroughAll"
pocket6.Reversed = True

# Sketch on XY plane
sketch11 = doc.addObject("Sketcher::SketchObject", "Sketch010")
body.addObject(sketch11)
sketch11.AttachmentSupport = (doc.XY_Plane, [""])
sketch11.MapMode = "FlatFace"
sketch11.AttachmentOffset = App.Placement(App.Vector(0, 0, -25.409308), App.Rotation())
sketch11.addGeometry(Part.Circle(App.Vector(-34.6, 16, 0), App.Vector(0, 0, 1), 1.2), False)
sketch11.addConstraint([
    Sketcher.Constraint("Diameter", 0, 2.5),
    Sketcher.Constraint("DistanceY", -1, 1, 0, 3, 16.0),
    Sketcher.Constraint("DistanceX", 0, 3, -1, 1, 34.620525),
])
pocket7 = doc.addObject("PartDesign::Pocket", "Pocket006")
body.addObject(pocket7)
pocket7.Profile = sketch11
pocket7.Type = "ThroughAll"
pocket7.Reversed = True

# Sketch on XZ plane
sketch12 = doc.addObject("Sketcher::SketchObject", "Sketch011")
body.addObject(sketch12)
sketch12.AttachmentSupport = (doc.XZ_Plane, [""])
sketch12.MapMode = "FlatFace"
add_polygon(sketch12, [(-18.6, 30.1), (-18.6, 31.6), (-28.6, 31.6), (-28.6, 30.1)])  # lines 0-3
add_polygon(sketch12, [(-18.6, -25.4), (-18.6, -23.9), (-28.6, -23.9), (-28.6, -25.4)])  # lines 4-7
sketch12.addConstraint([
    Sketcher.Constraint("Vertical", 0),
    Sketcher.Constraint("Horizontal", 1),
    Sketcher.Constraint("Vertical", 2),
    Sketcher.Constraint("Horizontal", 3),
    Sketcher.Constraint("Vertical", 4),
    Sketcher.Constraint("Horizontal", 5),
    Sketcher.Constraint("Vertical", 6),
    Sketcher.Constraint("Horizontal", 7),
    Sketcher.Constraint("Vertical", 3, 2, 4, 2),
    Sketcher.Constraint("Vertical", 2, 2, 5, 2),
    Sketcher.Constraint("Equal", 2, 4),
    Sketcher.Constraint("DistanceX", 1, 2, 1, 1, 10.0),
    Sketcher.Constraint("DistanceY", 0, 1, 0, 2, 1.5),
    Sketcher.Constraint("DistanceY", 4, 2, 3, 2, 54.0),
    Sketcher.Constraint("DistanceX", 0, 2, -1, 1, 18.620525),
    Sketcher.Constraint("DistanceY", -1, 1, 0, 2, 31.590692),
])
pocket8 = doc.addObject("PartDesign::Pocket", "Pocket007")
body.addObject(pocket8)
pocket8.Profile = sketch12
pocket8.Length = 1.5

doc.recompute()
